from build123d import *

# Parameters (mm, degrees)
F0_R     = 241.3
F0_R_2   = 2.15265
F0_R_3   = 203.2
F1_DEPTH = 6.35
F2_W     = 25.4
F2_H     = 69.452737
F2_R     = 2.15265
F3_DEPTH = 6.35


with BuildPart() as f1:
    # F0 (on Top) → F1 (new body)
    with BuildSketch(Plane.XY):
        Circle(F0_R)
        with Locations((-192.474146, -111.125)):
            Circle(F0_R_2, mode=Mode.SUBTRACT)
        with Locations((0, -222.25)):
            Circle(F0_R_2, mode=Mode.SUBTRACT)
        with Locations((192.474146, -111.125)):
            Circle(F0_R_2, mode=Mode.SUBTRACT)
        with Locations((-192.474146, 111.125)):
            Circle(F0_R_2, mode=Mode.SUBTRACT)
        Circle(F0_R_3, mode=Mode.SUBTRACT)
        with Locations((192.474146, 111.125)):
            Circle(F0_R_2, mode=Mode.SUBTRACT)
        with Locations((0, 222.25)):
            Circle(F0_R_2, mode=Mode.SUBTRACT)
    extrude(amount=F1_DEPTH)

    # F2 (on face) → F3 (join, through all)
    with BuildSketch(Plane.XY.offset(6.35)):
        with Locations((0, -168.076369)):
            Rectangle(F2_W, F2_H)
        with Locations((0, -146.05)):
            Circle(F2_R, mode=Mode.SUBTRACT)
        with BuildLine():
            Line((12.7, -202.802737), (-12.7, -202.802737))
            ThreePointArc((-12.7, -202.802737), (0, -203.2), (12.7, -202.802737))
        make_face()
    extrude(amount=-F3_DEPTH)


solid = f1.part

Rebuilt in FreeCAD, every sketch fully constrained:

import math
import FreeCAD as App
import Part
import Sketcher

V = App.Vector
Q = App.Units.Quantity

doc = App.newDocument("Part")
body = doc.addObject("PartDesign::Body", "Body")

# Sketch on XY plane
sketch1 = doc.addObject("Sketcher::SketchObject", "Sketch")
body.addObject(sketch1)
sketch1.AttachmentSupport = (doc.XY_Plane, [""])
sketch1.MapMode = "FlatFace"
sketch1.addGeometry(Part.Circle(V(0, 0, 0), V(0, 0, 1), 241.3), False)
sketch1.addGeometry(Part.Circle(V(0, -222.2, 0), V(0, 0, 1), 2.2), False)
sketch1.addGeometry(Part.Circle(V(-192.5, -111.1, 0), V(0, 0, 1), 2.2), False)
sketch1.addGeometry(Part.Circle(V(192.5, -111.1, 0), V(0, 0, 1), 2.2), False)
sketch1.addGeometry(Part.Circle(V(-192.5, 111.1, 0), V(0, 0, 1), 2.2), False)
sketch1.addGeometry(Part.Circle(V(0, 0, 0), V(0, 0, 1), 203.2), False)
sketch1.addGeometry(Part.Circle(V(0, 222.2, 0), V(0, 0, 1), 2.2), False)
sketch1.addGeometry(Part.Circle(V(192.5, 111.1, 0), V(0, 0, 1), 2.2), False)
sketch1.addConstraint(Sketcher.Constraint("Coincident", 0, 3, -1, 1))
sketch1.addConstraint(Sketcher.Constraint("Coincident", 5, 3, -1, 1))
sketch1.addConstraint(Sketcher.Constraint("Equal", 1, 2))
sketch1.addConstraint(Sketcher.Constraint("Equal", 2, 3))
sketch1.addConstraint(Sketcher.Constraint("Equal", 3, 4))
sketch1.addConstraint(Sketcher.Constraint("Equal", 4, 6))
sketch1.addConstraint(Sketcher.Constraint("Equal", 6, 7))
sketch1.addConstraint(Sketcher.Constraint("Symmetric", 3, 3, 4, 3, -1, 1))
sketch1.addConstraint(Sketcher.Constraint("Symmetric", 1, 3, 6, 3, -1, 1))
sketch1.addConstraint(Sketcher.Constraint("Symmetric", 2, 3, 7, 3, -1, 1))
sketch1.addConstraint(Sketcher.Constraint("Symmetric", 2, 3, 3, 3, -2))
sketch1.addConstraint(Sketcher.Constraint("PointOnObject", 1, 3, -2))
sketch1.addConstraint(Sketcher.Constraint("Diameter", 0, Q("19 in")))
sketch1.addConstraint(Sketcher.Constraint("Diameter", 5, Q("16 in")))
sketch1.addConstraint(Sketcher.Constraint("Diameter", 1, Q("0.1695 in")))
sketch1.addConstraint(Sketcher.Constraint("DistanceY", 1, 3, -1, 1, Q("8.75 in")))
sketch1.addConstraint(Sketcher.Constraint("DistanceY", 2, 3, 4, 3, Q("8.75 in")))
sketch1.addConstraint(Sketcher.Constraint("DistanceX", 2, 3, 3, 3, 384.948292))
pad1 = doc.addObject("PartDesign::Pad", "Pad")
body.addObject(pad1)
pad1.Profile = sketch1
pad1.Length = Q("0.25 in")

# Sketch on XY plane
sketch2 = doc.addObject("Sketcher::SketchObject", "Sketch001")
body.addObject(sketch2)
sketch2.AttachmentSupport = (doc.XY_Plane, [""])
sketch2.MapMode = "FlatFace"
sketch2.AttachmentOffset = App.Placement(V(0, 0, 0.25 * 25.4), App.Rotation())
sketch2.addGeometry(Part.LineSegment(V(-12.7, -133.4, 0), V(-12.7, -202.8, 0)), False)
sketch2.addGeometry(Part.ArcOfCircle(Part.Circle(V(0, 0, 0), V(0, 0, 1), 203.2), math.radians(-93.58), math.radians(-86.42)), False)
sketch2.addGeometry(Part.LineSegment(V(12.7, -202.8, 0), V(12.7, -133.4, 0)), False)
sketch2.addGeometry(Part.LineSegment(V(12.7, -133.4, 0), V(-12.7, -133.4, 0)), False)
sketch2.addGeometry(Part.Circle(V(0, -146.1, 0), V(0, 0, 1), 2.2), False)
sketch2.addConstraint(Sketcher.Constraint("Coincident", 0, 2, 1, 1))
sketch2.addConstraint(Sketcher.Constraint("Coincident", 1, 2, 2, 1))
sketch2.addConstraint(Sketcher.Constraint("Coincident", 2, 2, 3, 1))
sketch2.addConstraint(Sketcher.Constraint("Coincident", 3, 2, 0, 1))
sketch2.addConstraint(Sketcher.Constraint("Vertical", 0))
sketch2.addConstraint(Sketcher.Constraint("Vertical", 2))
sketch2.addConstraint(Sketcher.Constraint("Horizontal", 3))
sketch2.addConstraint(Sketcher.Constraint("Symmetric", 0, 2, 1, 2, -2))
sketch2.addConstraint(Sketcher.Constraint("PointOnObject", 4, 3, -2))
sketch2.addConstraint(Sketcher.Constraint("DistanceX", 3, 2, 3, 1, Q("1 in")))
sketch2.addConstraint(Sketcher.Constraint("Diameter", 4, Q("0.1695 in")))
sketch2.addConstraint(Sketcher.Constraint("DistanceY", 4, 3, 2, 2, Q("0.5 in")))
sketch2.addConstraint(Sketcher.Constraint("DistanceY", 4, 3, -1, 1, Q("5.75 in")))
sketch2.addConstraint(Sketcher.Constraint("Radius", 1, 203.20017))
sketch2.addConstraint(Sketcher.Constraint("DistanceY", 0, 2, 0, 1, 69.452737))
pad2 = doc.addObject("PartDesign::Pad", "Pad001")
body.addObject(pad2)
pad2.Profile = sketch2
pad2.Length = Q("0.25 in")
pad2.Reversed = True

doc.recompute()
